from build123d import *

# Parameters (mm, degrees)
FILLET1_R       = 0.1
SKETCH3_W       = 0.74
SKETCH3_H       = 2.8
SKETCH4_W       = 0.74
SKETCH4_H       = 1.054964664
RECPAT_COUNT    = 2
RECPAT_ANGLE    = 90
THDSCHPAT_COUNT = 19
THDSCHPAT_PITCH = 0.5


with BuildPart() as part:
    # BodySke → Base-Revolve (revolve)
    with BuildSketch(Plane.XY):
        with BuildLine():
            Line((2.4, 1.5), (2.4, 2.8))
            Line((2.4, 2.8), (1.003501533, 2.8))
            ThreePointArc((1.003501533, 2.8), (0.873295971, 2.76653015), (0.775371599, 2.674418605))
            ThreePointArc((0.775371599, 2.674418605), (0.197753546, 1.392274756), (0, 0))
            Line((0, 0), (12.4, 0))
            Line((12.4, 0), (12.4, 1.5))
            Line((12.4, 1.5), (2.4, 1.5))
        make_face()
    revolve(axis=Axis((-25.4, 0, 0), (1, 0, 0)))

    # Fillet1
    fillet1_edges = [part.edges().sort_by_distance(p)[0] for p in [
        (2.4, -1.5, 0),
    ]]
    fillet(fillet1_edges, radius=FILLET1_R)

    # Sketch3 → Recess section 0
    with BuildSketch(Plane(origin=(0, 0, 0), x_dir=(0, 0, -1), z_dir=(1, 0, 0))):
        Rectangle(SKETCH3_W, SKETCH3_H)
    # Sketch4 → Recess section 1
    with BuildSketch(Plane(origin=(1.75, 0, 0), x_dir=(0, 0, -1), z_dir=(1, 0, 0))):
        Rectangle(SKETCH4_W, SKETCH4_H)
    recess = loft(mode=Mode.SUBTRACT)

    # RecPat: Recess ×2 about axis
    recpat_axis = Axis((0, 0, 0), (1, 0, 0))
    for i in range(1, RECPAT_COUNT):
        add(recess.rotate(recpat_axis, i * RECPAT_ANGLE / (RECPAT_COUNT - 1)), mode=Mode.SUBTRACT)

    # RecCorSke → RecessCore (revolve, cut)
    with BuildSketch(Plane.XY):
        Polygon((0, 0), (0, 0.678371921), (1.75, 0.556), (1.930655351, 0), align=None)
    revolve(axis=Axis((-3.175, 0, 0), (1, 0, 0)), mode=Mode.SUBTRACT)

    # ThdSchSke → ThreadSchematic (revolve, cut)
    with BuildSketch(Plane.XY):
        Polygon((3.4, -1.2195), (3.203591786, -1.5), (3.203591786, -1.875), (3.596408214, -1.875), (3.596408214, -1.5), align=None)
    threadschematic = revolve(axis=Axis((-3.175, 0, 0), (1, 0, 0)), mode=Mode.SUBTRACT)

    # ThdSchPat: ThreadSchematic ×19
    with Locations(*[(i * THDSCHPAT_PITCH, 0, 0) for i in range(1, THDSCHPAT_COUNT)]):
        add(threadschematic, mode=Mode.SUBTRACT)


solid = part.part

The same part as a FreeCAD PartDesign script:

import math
import FreeCAD as App
import Part
import Sketcher

V = App.Vector
Q = App.Units.Quantity


def edges_at(feature, points):
    """Names of the edges that pass closest to the given points."""
    edges = feature.Shape.Edges
    near = lambda p: min(range(len(edges)), key=lambda i: edges[i].distToShape(Part.Vertex(*p))[0])
    return sorted({f"Edge{near(p) + 1}" for p in points})


def add_polygon(sketch, points):
    """Adds a closed chain of lines whose ends are joined by coincident constraints."""
    first, n = sketch.GeometryCount, len(points)
    for a, b in zip(points, points[1:] + points[:1]):
        sketch.addGeometry(Part.LineSegment(App.Vector(*a, 0), App.Vector(*b, 0)), False)
    for i in range(n):
        sketch.addConstraint(Sketcher.Constraint("Coincident", first + i, 2, first + (i + 1) % n, 1))

doc = App.newDocument("Part")
body = doc.addObject("PartDesign::Body", "Body")

sketch1 = body.newObject("Sketcher::SketchObject", "Sketch")
sketch1.AttachmentSupport = (doc.getObject("XY_Plane"), [""])
sketch1.MapMode = "FlatFace"
sketch1.addGeometry(Part.LineSegment(V(2.4, 1.5, 0), V(2.4, 2.8, 0)), False)
sketch1.addGeometry(Part.LineSegment(V(2.4, 2.8, 0), V(1, 2.8, 0)), False)
sketch1.addGeometry(Part.ArcOfCircle(Part.Circle(V(1, 2.53, 0), V(0, 0, 1), 0.27), math.radians(90), math.radians(148)), False)
sketch1.addGeometry(Part.ArcOfCircle(Part.Circle(V(5, 0, 0), V(0, 0, 1), 5), math.radians(148), math.radians(180)), False)
sketch1.addGeometry(Part.LineSegment(V(0, 0, 0), V(12.4, 0, 0)), False)
sketch1.addGeometry(Part.LineSegment(V(12.4, 0, 0), V(12.4, 1.5, 0)), False)
sketch1.addGeometry(Part.LineSegment(V(12.4, 1.5, 0), V(2.4, 1.5, 0)), False)
sketch1.addConstraint(Sketcher.Constraint("Coincident", 0, 2, 1, 1))
sketch1.addConstraint(Sketcher.Constraint("Tangent", 1, 2, 2, 1))
sketch1.addConstraint(Sketcher.Constraint("Tangent", 2, 2, 3, 1))
sketch1.addConstraint(Sketcher.Constraint("Coincident", 3, 2, 4, 1))
sketch1.addConstraint(Sketcher.Constraint("Coincident", 4, 2, 5, 1))
sketch1.addConstraint(Sketcher.Constraint("Coincident", 5, 2, 6, 1))
sketch1.addConstraint(Sketcher.Constraint("Coincident", 6, 2, 0, 1))
sketch1.addConstraint(Sketcher.Constraint("Vertical", 0))
sketch1.addConstraint(Sketcher.Constraint("Horizontal", 1))
sketch1.addConstraint(Sketcher.Constraint("Horizontal", 4))
sketch1.addConstraint(Sketcher.Constraint("Vertical", 5))
sketch1.addConstraint(Sketcher.Constraint("Horizontal", 6))
sketch1.addConstraint(Sketcher.Constraint("Coincident", 3, 2, -1, 1))
sketch1.addConstraint(Sketcher.Constraint("PointOnObject", 3, 3, -1))
sketch1.addConstraint(Sketcher.Constraint("Radius", 3, 5.0))
sketch1.addConstraint(Sketcher.Constraint("DistanceX", 6, 2, 6, 1, 10.0))
sketch1.addConstraint(Sketcher.Constraint("Radius", 2, 0.27))
sketch1.addConstraint(Sketcher.Constraint("DistanceX", 4, 1, 4, 2, 12.4))
sketch1.addConstraint(Sketcher.Constraint("DistanceY", 0, 1, 0, 2, 1.3))
sketch1.addConstraint(Sketcher.Constraint("DistanceY", 5, 1, 5, 2, 1.5))
revolution = body.newObject("PartDesign::Revolution", "Revolution")
revolution.Profile = sketch1
revolution.ReferenceAxis = (sketch1, ["H_Axis"])
revolution.Angle = 360
doc.recompute()

fillet = body.newObject("PartDesign::Fillet", "Fillet")
fillet.Base = (revolution, edges_at(revolution, [(2.4, -1.5, 0)]))
fillet.Radius = 0.1

sketch2 = body.newObject("Sketcher::SketchObject", "Sketch001")
sketch2.AttachmentSupport = (doc.getObject("YZ_Plane"), [""])
sketch2.MapMode = "FlatFace"
add_polygon(sketch2, [(1.4, 0.4), (-1.4, 0.4), (-1.4, -0.4), (1.4, -0.4)])
sketch2.addConstraint(Sketcher.Constraint("Horizontal", 0))
sketch2.addConstraint(Sketcher.Constraint("Vertical", 1))
sketch2.addConstraint(Sketcher.Constraint("Horizontal", 2))
sketch2.addConstraint(Sketcher.Constraint("Vertical", 3))
sketch2.addConstraint(Sketcher.Constraint("Symmetric", 0, 2, 2, 2, -1, 1))
sketch2.addConstraint(Sketcher.Constraint("DistanceX", 0, 2, 0, 1, 2.8))
sketch2.addConstraint(Sketcher.Constraint("DistanceY", 1, 2, 1, 1, 0.74))

sketch3 = body.newObject("Sketcher::SketchObject", "Sketch002")
sketch3.AttachmentSupport = (doc.getObject("YZ_Plane"), [""])
sketch3.MapMode = "FlatFace"
sketch3.AttachmentOffset = App.Placement(V(0, 0, 1.75), App.Rotation())
add_polygon(sketch3, [(0.5, 0.4), (-0.5, 0.4), (-0.5, -0.4), (0.5, -0.4)])
sketch3.addConstraint(Sketcher.Constraint("Horizontal", 0))
sketch3.addConstraint(Sketcher.Constraint("Vertical", 1))
sketch3.addConstraint(Sketcher.Constraint("Horizontal", 2))
sketch3.addConstraint(Sketcher.Constraint("Vertical", 3))
sketch3.addConstraint(Sketcher.Constraint("Symmetric", 0, 2, 2, 2, -1, 1))
sketch3.addConstraint(Sketcher.Constraint("DistanceY", 1, 2, 1, 1, 0.74))
sketch3.addConstraint(Sketcher.Constraint("DistanceX", 0, 2, 0, 1, 1.054965))

subtractiveloft = body.newObject("PartDesign::SubtractiveLoft", "SubtractiveLoft")
subtractiveloft.Profile = sketch2
subtractiveloft.Sections = [sketch3]
doc.recompute()

polarpattern = body.newObject("PartDesign::PolarPattern", "PolarPattern")
polarpattern.Originals = [subtractiveloft]
polarpattern.Axis = (doc.getObject("X_Axis"), [""])
polarpattern.Angle = 90
polarpattern.Occurrences = 2
body.Tip = polarpattern

sketch4 = body.newObject("Sketcher::SketchObject", "Sketch003")
sketch4.AttachmentSupport = (doc.getObject("XY_Plane"), [""])
sketch4.MapMode = "FlatFace"
add_polygon(sketch4, [(0, 0.7), (0, 0), (1.9, 0), (1.8, 0.6)])
sketch4.addConstraint(Sketcher.Constraint("Vertical", 0))
sketch4.addConstraint(Sketcher.Constraint("Horizontal", 1))
sketch4.addConstraint(Sketcher.Constraint("Coincident", 0, 2, -1, 1))
sketch4.addConstraint(Sketcher.Constraint("Angle", 2, Q("108 deg")))
sketch4.addConstraint(Sketcher.Constraint("Angle", 3, Q("176 deg")))
sketch4.addConstraint(Sketcher.Constraint("DistanceX", -1, 1, 2, 2, 1.75))
sketch4.addConstraint(Sketcher.Constraint("DistanceY", -1, 1, 2, 2, 0.556))
groove = body.newObject("PartDesign::Groove", "Groove")
groove.Profile = sketch4
groove.ReferenceAxis = (sketch4, ["H_Axis"])
groove.Angle = 360

sketch5 = body.newObject("Sketcher::SketchObject", "Sketch004")
sketch5.AttachmentSupport = (doc.getObject("XY_Plane"), [""])
sketch5.MapMode = "FlatFace"
add_polygon(sketch5, [(3.4, -1.22), (3.2, -1.5), (3.2, -1.88), (3.6, -1.88), (3.6, -1.5)])
sketch5.addConstraint(Sketcher.Constraint("Vertical", 1))
sketch5.addConstraint(Sketcher.Constraint("Horizontal", 2))
sketch5.addConstraint(Sketcher.Constraint("Vertical", 3))
sketch5.addConstraint(Sketcher.Constraint("Horizontal", 0, 2, 3, 2))
sketch5.addConstraint(Sketcher.Constraint("Equal", 0, 4))
sketch5.addConstraint(Sketcher.Constraint("Angle", 0, Q("-125 deg")))
sketch5.addConstraint(Sketcher.Constraint("DistanceY", 0, 2, -1, 1, 1.5))
sketch5.addConstraint(Sketcher.Constraint("DistanceX", -1, 1, 4, 2, 3.4))
sketch5.addConstraint(Sketcher.Constraint("DistanceY", 1, 2, 1, 1, 0.375))
sketch5.addConstraint(Sketcher.Constraint("DistanceY", 4, 2, -1, 1, 1.2195))
groove2 = body.newObject("PartDesign::Groove", "Groove001")
groove2.Profile = sketch5
groove2.ReferenceAxis = (sketch5, ["H_Axis"])
groove2.Angle = 360
doc.recompute()

linearpattern = body.newObject("PartDesign::LinearPattern", "LinearPattern")
linearpattern.Originals = [groove2]
linearpattern.Direction = (doc.getObject("X_Axis"), [""])
linearpattern.Mode = "offset"
linearpattern.Offset = 0.5
linearpattern.Occurrences = 19
body.Tip = linearpattern

doc.recompute()
